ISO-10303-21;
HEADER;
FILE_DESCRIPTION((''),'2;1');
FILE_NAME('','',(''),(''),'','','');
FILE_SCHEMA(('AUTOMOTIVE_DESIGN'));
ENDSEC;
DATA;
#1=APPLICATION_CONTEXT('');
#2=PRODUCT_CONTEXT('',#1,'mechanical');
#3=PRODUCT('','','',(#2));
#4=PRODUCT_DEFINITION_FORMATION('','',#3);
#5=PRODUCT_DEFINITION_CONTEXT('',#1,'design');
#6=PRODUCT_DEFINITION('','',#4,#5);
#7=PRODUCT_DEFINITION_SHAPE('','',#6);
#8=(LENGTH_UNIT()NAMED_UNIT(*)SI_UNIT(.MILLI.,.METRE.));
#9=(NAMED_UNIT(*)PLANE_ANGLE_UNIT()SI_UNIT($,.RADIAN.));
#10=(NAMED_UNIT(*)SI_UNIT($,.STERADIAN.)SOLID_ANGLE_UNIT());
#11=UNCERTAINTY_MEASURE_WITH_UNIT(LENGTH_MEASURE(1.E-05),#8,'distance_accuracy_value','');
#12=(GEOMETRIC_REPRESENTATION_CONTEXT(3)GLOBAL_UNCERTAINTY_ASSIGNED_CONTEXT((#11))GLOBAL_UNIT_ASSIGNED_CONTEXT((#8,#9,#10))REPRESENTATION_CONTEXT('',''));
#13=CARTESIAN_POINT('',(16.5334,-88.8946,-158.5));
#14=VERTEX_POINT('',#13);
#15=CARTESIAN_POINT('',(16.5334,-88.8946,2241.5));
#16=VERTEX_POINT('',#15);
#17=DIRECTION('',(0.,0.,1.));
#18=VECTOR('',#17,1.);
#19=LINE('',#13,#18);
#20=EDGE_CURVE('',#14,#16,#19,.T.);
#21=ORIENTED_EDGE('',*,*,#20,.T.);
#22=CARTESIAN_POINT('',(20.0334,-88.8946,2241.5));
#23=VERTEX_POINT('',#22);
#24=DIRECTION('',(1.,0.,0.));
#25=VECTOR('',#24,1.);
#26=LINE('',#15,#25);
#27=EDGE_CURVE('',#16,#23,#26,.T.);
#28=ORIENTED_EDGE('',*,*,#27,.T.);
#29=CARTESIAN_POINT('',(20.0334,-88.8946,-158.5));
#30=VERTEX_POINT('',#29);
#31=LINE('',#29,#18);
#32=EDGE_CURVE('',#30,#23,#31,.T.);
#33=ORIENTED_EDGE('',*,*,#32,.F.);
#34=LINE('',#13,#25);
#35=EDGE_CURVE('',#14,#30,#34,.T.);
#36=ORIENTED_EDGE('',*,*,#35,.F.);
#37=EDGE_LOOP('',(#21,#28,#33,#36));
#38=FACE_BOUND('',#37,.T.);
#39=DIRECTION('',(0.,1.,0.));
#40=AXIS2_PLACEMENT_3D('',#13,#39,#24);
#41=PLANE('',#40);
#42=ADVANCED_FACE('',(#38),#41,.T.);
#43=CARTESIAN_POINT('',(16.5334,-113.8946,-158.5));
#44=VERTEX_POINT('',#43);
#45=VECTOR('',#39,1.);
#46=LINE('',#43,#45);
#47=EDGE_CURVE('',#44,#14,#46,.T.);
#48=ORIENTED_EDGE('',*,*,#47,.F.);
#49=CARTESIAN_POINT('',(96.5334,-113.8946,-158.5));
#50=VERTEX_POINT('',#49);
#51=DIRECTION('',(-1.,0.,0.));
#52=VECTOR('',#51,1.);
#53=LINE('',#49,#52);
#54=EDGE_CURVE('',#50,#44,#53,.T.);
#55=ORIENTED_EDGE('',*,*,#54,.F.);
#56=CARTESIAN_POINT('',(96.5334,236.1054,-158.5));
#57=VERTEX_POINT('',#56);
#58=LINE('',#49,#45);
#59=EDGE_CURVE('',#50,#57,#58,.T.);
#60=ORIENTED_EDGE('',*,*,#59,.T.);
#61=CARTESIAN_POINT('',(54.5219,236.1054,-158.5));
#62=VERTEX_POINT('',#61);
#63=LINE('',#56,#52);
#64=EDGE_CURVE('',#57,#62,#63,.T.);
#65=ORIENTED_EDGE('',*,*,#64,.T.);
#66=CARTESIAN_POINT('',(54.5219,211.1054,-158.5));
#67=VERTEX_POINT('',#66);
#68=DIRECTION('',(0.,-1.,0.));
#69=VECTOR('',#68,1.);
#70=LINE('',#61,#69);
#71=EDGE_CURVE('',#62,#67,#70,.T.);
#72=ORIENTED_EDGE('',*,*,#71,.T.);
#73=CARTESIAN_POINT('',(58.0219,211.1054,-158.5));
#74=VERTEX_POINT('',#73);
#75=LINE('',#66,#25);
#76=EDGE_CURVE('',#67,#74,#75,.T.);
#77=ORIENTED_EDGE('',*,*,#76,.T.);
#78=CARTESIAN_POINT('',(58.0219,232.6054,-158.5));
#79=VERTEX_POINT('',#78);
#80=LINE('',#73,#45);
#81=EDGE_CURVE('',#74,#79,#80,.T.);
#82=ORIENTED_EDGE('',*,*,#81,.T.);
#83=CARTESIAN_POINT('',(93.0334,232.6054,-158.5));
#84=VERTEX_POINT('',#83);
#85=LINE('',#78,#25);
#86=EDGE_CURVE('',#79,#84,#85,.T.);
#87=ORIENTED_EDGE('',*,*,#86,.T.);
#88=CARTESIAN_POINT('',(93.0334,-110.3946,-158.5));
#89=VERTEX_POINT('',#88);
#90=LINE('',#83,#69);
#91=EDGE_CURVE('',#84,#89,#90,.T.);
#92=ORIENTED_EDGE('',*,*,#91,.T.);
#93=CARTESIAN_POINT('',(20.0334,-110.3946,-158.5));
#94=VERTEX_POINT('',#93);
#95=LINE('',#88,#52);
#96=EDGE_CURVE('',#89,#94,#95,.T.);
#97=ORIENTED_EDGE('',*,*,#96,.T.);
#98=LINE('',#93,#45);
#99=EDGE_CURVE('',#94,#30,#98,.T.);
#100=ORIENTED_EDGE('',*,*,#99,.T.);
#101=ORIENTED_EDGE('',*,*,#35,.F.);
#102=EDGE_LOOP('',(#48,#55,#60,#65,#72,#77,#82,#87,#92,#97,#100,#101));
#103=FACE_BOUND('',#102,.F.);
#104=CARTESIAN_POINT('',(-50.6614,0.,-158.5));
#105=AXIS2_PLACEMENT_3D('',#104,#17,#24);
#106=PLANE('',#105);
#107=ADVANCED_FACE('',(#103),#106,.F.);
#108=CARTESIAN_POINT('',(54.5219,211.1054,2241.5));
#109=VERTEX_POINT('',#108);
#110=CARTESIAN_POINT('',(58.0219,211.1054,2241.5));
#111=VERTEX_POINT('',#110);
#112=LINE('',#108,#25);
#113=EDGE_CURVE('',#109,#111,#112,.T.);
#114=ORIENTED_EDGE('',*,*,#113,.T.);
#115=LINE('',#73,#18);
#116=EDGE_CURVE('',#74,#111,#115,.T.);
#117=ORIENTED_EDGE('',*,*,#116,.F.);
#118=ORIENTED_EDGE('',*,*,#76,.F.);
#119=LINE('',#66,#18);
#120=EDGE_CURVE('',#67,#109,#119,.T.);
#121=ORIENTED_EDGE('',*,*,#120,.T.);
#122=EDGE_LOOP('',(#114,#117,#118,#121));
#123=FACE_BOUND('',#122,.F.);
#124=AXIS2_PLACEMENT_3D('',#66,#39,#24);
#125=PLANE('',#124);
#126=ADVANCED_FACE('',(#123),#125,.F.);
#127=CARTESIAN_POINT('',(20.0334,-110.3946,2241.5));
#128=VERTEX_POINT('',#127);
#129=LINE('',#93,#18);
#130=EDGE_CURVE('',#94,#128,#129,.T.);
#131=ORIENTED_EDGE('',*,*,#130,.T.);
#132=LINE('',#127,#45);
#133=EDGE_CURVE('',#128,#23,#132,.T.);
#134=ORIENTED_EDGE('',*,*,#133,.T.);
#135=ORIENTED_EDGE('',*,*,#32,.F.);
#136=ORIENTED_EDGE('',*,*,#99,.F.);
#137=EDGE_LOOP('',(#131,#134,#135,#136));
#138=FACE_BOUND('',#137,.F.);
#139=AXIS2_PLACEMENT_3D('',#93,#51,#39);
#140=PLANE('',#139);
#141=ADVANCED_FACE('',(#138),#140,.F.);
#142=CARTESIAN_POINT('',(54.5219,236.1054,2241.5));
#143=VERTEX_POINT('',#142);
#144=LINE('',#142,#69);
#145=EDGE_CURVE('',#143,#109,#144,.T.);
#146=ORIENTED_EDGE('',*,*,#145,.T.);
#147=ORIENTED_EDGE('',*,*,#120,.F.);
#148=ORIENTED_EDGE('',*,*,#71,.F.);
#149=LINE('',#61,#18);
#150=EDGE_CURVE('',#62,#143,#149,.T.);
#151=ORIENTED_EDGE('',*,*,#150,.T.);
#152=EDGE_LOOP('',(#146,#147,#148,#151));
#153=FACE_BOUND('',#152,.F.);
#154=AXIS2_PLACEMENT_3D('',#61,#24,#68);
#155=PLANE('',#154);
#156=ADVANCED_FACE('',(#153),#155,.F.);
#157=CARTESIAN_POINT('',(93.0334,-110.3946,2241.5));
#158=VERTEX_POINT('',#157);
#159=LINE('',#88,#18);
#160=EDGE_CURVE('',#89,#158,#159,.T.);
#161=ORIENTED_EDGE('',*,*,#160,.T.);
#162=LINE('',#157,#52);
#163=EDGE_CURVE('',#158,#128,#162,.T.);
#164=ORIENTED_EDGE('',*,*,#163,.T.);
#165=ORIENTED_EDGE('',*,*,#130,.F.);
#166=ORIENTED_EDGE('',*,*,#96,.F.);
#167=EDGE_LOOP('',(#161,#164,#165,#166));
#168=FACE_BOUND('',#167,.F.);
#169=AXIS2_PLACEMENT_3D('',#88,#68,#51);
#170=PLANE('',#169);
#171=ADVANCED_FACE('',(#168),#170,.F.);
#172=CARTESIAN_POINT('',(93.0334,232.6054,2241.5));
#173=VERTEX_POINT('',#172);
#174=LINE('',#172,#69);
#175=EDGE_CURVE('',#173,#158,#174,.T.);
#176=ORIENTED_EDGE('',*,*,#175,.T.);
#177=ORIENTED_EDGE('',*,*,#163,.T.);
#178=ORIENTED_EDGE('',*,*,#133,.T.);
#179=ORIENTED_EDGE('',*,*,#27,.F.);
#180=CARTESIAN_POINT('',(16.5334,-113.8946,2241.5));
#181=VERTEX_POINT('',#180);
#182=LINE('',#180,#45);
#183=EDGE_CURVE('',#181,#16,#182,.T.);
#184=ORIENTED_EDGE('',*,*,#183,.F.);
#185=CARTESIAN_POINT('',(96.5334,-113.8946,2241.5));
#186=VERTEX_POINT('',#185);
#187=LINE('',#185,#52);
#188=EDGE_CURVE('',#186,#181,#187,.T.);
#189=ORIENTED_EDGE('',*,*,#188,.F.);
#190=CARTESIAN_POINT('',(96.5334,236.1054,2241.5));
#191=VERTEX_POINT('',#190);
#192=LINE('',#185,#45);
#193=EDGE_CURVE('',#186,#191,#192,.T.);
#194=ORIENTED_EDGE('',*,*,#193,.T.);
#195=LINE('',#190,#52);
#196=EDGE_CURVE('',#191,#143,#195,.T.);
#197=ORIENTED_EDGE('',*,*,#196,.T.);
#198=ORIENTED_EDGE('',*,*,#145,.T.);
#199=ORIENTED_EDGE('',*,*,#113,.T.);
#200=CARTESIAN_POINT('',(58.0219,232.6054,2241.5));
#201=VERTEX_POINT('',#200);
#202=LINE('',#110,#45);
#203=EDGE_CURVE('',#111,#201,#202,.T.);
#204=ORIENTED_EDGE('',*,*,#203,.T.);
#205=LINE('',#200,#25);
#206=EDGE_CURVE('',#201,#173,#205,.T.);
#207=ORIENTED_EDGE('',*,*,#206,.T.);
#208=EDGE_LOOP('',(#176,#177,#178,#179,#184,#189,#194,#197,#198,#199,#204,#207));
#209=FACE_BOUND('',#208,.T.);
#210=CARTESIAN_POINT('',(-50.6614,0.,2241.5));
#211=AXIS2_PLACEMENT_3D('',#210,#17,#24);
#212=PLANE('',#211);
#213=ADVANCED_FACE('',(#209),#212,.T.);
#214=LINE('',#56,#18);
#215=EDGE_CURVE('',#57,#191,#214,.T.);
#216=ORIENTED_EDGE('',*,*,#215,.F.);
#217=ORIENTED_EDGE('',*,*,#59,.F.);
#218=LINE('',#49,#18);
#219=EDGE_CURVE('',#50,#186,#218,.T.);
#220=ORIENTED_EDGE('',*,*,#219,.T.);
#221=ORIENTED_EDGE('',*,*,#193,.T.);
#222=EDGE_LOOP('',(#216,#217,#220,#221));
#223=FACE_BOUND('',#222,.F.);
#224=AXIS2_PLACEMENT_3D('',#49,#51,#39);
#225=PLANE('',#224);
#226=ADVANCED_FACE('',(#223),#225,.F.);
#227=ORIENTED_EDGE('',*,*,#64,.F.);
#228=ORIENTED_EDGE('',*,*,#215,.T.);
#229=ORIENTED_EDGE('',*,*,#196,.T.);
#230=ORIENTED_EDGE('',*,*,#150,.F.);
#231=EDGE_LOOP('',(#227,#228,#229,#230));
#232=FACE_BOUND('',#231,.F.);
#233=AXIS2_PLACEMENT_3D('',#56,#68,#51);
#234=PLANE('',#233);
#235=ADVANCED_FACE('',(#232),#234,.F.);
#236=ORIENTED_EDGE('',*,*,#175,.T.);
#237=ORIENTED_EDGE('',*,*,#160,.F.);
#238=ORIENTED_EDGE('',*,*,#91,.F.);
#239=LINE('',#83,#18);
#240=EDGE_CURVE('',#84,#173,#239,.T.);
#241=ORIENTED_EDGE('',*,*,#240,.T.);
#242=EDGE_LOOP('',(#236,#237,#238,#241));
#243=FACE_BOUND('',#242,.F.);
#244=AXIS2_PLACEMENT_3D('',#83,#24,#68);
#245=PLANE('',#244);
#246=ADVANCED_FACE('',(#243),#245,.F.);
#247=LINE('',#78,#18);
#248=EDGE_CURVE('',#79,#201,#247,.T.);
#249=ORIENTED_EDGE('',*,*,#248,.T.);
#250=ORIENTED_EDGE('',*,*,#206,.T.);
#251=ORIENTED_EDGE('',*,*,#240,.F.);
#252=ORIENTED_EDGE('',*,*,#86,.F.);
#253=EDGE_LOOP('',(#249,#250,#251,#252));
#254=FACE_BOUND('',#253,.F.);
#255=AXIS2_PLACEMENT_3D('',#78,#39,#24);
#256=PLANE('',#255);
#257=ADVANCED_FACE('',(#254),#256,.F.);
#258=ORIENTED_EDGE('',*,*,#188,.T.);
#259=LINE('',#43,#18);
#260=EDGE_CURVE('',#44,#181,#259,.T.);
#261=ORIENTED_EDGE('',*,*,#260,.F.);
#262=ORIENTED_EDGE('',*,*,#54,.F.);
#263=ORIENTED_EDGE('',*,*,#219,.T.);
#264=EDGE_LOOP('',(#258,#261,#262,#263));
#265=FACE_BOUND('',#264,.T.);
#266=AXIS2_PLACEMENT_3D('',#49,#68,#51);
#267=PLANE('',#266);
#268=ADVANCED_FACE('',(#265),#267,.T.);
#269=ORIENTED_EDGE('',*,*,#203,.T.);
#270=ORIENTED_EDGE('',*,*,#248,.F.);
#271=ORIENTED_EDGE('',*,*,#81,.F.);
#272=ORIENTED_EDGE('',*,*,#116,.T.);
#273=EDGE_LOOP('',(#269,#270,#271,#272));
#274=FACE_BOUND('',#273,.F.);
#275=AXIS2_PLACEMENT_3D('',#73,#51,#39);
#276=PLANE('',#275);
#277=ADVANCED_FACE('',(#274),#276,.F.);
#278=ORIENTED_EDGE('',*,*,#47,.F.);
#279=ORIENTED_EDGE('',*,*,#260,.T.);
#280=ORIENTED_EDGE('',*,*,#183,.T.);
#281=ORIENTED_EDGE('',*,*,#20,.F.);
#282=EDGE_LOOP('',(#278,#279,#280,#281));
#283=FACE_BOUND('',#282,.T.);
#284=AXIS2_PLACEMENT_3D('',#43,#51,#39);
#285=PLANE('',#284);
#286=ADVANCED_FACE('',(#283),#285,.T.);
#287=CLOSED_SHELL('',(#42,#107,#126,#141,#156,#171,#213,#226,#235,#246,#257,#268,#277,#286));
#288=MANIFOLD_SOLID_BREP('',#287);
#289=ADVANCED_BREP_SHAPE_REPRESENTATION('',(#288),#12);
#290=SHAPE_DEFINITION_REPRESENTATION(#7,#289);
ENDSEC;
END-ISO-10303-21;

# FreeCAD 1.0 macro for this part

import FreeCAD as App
import Part
import Sketcher

doc = App.newDocument("Part")
body = doc.addObject("PartDesign::Body", "Body")

# Sketch on XY plane
sketch1 = doc.addObject("Sketcher::SketchObject", "Sketch")
body.addObject(sketch1)
sketch1.AttachmentSupport = (doc.XY_Plane, [""])
sketch1.MapMode = "FlatFace"
sketch1.AttachmentOffset = App.Placement(App.Vector(0, 0, -158.5), App.Rotation())
sketch1.addGeometry([
    Part.LineSegment(App.Vector(16.5, -113.9, 0), App.Vector(96.5, -113.9, 0)),  # 0
    Part.LineSegment(App.Vector(96.5, -113.9, 0), App.Vector(96.5, 236.1, 0)),  # 1
    Part.LineSegment(App.Vector(96.5, 236.1, 0), App.Vector(54.5, 236.1, 0)),  # 2
    Part.LineSegment(App.Vector(54.5, 236.1, 0), App.Vector(54.5, 211.1, 0)),  # 3
    Part.LineSegment(App.Vector(54.5, 211.1, 0), App.Vector(58, 211.1, 0)),  # 4
    Part.LineSegment(App.Vector(58, 211.1, 0), App.Vector(58, 232.6, 0)),  # 5
    Part.LineSegment(App.Vector(58, 232.6, 0), App.Vector(93, 232.6, 0)),  # 6
    Part.LineSegment(App.Vector(93, 232.6, 0), App.Vector(93, -110.4, 0)),  # 7
    Part.LineSegment(App.Vector(93, -110.4, 0), App.Vector(20, -110.4, 0)),  # 8
    Part.LineSegment(App.Vector(20, -110.4, 0), App.Vector(20, -88.9, 0)),  # 9
    Part.LineSegment(App.Vector(20, -88.9, 0), App.Vector(16.5, -88.9, 0)),  # 10
    Part.LineSegment(App.Vector(16.5, -88.9, 0), App.Vector(16.5, -113.9, 0)),  # 11
], False)
sketch1.addConstraint([
    Sketcher.Constraint("Coincident", 0, 2, 1, 1),
    Sketcher.Constraint("Coincident", 1, 2, 2, 1),
    Sketcher.Constraint("Coincident", 2, 2, 3, 1),
    Sketcher.Constraint("Coincident", 3, 2, 4, 1),
    Sketcher.Constraint("Coincident", 4, 2, 5, 1),
    Sketcher.Constraint("Coincident", 5, 2, 6, 1),
    Sketcher.Constraint("Coincident", 6, 2, 7, 1),
    Sketcher.Constraint("Coincident", 7, 2, 8, 1),
    Sketcher.Constraint("Coincident", 8, 2, 9, 1),
    Sketcher.Constraint("Coincident", 9, 2, 10, 1),
    Sketcher.Constraint("Coincident", 10, 2, 11, 1),
    Sketcher.Constraint("Coincident", 11, 2, 0, 1),
    Sketcher.Constraint("Horizontal", 0),
    Sketcher.Constraint("Vertical", 1),
    Sketcher.Constraint("Horizontal", 2),
    Sketcher.Constraint("Vertical", 3),
    Sketcher.Constraint("Horizontal", 4),
    Sketcher.Constraint("Vertical", 5),
    Sketcher.Constraint("Horizontal", 6),
    Sketcher.Constraint("Vertical", 7),
    Sketcher.Constraint("Horizontal", 8),
    Sketcher.Constraint("Vertical", 9),
    Sketcher.Constraint("Horizontal", 10),
    Sketcher.Constraint("Vertical", 11),
    Sketcher.Constraint("Equal", 4, 10),
    Sketcher.Constraint("Equal", 5, 9),
    Sketcher.Constraint("Equal", 3, 11),
    Sketcher.Constraint("DistanceX", 0, 1, 0, 2, 80.0),
    Sketcher.Constraint("DistanceY", 1, 1, 1, 2, 350.0),
    Sketcher.Constraint("DistanceY", 3, 2, 3, 1, 25.0),
    Sketcher.Constraint("DistanceX", 4, 1, 4, 2, 3.5),
    Sketcher.Constraint("DistanceY", 5, 2, 2, 2, 3.5),
    Sketcher.Constraint("DistanceX", 6, 2, 1, 2, 3.5),
    Sketcher.Constraint("DistanceX", 2, 2, 2, 1, 42.0115),
    Sketcher.Constraint("DistanceX", -1, 1, 2, 2, 54.522),
    Sketcher.Constraint("DistanceY", 0, 2, -1, 1, 113.8946),
])
pad1 = doc.addObject("PartDesign::Pad", "Pad")
body.addObject(pad1)
pad1.Profile = sketch1
pad1.Length = 2400

doc.recompute()
